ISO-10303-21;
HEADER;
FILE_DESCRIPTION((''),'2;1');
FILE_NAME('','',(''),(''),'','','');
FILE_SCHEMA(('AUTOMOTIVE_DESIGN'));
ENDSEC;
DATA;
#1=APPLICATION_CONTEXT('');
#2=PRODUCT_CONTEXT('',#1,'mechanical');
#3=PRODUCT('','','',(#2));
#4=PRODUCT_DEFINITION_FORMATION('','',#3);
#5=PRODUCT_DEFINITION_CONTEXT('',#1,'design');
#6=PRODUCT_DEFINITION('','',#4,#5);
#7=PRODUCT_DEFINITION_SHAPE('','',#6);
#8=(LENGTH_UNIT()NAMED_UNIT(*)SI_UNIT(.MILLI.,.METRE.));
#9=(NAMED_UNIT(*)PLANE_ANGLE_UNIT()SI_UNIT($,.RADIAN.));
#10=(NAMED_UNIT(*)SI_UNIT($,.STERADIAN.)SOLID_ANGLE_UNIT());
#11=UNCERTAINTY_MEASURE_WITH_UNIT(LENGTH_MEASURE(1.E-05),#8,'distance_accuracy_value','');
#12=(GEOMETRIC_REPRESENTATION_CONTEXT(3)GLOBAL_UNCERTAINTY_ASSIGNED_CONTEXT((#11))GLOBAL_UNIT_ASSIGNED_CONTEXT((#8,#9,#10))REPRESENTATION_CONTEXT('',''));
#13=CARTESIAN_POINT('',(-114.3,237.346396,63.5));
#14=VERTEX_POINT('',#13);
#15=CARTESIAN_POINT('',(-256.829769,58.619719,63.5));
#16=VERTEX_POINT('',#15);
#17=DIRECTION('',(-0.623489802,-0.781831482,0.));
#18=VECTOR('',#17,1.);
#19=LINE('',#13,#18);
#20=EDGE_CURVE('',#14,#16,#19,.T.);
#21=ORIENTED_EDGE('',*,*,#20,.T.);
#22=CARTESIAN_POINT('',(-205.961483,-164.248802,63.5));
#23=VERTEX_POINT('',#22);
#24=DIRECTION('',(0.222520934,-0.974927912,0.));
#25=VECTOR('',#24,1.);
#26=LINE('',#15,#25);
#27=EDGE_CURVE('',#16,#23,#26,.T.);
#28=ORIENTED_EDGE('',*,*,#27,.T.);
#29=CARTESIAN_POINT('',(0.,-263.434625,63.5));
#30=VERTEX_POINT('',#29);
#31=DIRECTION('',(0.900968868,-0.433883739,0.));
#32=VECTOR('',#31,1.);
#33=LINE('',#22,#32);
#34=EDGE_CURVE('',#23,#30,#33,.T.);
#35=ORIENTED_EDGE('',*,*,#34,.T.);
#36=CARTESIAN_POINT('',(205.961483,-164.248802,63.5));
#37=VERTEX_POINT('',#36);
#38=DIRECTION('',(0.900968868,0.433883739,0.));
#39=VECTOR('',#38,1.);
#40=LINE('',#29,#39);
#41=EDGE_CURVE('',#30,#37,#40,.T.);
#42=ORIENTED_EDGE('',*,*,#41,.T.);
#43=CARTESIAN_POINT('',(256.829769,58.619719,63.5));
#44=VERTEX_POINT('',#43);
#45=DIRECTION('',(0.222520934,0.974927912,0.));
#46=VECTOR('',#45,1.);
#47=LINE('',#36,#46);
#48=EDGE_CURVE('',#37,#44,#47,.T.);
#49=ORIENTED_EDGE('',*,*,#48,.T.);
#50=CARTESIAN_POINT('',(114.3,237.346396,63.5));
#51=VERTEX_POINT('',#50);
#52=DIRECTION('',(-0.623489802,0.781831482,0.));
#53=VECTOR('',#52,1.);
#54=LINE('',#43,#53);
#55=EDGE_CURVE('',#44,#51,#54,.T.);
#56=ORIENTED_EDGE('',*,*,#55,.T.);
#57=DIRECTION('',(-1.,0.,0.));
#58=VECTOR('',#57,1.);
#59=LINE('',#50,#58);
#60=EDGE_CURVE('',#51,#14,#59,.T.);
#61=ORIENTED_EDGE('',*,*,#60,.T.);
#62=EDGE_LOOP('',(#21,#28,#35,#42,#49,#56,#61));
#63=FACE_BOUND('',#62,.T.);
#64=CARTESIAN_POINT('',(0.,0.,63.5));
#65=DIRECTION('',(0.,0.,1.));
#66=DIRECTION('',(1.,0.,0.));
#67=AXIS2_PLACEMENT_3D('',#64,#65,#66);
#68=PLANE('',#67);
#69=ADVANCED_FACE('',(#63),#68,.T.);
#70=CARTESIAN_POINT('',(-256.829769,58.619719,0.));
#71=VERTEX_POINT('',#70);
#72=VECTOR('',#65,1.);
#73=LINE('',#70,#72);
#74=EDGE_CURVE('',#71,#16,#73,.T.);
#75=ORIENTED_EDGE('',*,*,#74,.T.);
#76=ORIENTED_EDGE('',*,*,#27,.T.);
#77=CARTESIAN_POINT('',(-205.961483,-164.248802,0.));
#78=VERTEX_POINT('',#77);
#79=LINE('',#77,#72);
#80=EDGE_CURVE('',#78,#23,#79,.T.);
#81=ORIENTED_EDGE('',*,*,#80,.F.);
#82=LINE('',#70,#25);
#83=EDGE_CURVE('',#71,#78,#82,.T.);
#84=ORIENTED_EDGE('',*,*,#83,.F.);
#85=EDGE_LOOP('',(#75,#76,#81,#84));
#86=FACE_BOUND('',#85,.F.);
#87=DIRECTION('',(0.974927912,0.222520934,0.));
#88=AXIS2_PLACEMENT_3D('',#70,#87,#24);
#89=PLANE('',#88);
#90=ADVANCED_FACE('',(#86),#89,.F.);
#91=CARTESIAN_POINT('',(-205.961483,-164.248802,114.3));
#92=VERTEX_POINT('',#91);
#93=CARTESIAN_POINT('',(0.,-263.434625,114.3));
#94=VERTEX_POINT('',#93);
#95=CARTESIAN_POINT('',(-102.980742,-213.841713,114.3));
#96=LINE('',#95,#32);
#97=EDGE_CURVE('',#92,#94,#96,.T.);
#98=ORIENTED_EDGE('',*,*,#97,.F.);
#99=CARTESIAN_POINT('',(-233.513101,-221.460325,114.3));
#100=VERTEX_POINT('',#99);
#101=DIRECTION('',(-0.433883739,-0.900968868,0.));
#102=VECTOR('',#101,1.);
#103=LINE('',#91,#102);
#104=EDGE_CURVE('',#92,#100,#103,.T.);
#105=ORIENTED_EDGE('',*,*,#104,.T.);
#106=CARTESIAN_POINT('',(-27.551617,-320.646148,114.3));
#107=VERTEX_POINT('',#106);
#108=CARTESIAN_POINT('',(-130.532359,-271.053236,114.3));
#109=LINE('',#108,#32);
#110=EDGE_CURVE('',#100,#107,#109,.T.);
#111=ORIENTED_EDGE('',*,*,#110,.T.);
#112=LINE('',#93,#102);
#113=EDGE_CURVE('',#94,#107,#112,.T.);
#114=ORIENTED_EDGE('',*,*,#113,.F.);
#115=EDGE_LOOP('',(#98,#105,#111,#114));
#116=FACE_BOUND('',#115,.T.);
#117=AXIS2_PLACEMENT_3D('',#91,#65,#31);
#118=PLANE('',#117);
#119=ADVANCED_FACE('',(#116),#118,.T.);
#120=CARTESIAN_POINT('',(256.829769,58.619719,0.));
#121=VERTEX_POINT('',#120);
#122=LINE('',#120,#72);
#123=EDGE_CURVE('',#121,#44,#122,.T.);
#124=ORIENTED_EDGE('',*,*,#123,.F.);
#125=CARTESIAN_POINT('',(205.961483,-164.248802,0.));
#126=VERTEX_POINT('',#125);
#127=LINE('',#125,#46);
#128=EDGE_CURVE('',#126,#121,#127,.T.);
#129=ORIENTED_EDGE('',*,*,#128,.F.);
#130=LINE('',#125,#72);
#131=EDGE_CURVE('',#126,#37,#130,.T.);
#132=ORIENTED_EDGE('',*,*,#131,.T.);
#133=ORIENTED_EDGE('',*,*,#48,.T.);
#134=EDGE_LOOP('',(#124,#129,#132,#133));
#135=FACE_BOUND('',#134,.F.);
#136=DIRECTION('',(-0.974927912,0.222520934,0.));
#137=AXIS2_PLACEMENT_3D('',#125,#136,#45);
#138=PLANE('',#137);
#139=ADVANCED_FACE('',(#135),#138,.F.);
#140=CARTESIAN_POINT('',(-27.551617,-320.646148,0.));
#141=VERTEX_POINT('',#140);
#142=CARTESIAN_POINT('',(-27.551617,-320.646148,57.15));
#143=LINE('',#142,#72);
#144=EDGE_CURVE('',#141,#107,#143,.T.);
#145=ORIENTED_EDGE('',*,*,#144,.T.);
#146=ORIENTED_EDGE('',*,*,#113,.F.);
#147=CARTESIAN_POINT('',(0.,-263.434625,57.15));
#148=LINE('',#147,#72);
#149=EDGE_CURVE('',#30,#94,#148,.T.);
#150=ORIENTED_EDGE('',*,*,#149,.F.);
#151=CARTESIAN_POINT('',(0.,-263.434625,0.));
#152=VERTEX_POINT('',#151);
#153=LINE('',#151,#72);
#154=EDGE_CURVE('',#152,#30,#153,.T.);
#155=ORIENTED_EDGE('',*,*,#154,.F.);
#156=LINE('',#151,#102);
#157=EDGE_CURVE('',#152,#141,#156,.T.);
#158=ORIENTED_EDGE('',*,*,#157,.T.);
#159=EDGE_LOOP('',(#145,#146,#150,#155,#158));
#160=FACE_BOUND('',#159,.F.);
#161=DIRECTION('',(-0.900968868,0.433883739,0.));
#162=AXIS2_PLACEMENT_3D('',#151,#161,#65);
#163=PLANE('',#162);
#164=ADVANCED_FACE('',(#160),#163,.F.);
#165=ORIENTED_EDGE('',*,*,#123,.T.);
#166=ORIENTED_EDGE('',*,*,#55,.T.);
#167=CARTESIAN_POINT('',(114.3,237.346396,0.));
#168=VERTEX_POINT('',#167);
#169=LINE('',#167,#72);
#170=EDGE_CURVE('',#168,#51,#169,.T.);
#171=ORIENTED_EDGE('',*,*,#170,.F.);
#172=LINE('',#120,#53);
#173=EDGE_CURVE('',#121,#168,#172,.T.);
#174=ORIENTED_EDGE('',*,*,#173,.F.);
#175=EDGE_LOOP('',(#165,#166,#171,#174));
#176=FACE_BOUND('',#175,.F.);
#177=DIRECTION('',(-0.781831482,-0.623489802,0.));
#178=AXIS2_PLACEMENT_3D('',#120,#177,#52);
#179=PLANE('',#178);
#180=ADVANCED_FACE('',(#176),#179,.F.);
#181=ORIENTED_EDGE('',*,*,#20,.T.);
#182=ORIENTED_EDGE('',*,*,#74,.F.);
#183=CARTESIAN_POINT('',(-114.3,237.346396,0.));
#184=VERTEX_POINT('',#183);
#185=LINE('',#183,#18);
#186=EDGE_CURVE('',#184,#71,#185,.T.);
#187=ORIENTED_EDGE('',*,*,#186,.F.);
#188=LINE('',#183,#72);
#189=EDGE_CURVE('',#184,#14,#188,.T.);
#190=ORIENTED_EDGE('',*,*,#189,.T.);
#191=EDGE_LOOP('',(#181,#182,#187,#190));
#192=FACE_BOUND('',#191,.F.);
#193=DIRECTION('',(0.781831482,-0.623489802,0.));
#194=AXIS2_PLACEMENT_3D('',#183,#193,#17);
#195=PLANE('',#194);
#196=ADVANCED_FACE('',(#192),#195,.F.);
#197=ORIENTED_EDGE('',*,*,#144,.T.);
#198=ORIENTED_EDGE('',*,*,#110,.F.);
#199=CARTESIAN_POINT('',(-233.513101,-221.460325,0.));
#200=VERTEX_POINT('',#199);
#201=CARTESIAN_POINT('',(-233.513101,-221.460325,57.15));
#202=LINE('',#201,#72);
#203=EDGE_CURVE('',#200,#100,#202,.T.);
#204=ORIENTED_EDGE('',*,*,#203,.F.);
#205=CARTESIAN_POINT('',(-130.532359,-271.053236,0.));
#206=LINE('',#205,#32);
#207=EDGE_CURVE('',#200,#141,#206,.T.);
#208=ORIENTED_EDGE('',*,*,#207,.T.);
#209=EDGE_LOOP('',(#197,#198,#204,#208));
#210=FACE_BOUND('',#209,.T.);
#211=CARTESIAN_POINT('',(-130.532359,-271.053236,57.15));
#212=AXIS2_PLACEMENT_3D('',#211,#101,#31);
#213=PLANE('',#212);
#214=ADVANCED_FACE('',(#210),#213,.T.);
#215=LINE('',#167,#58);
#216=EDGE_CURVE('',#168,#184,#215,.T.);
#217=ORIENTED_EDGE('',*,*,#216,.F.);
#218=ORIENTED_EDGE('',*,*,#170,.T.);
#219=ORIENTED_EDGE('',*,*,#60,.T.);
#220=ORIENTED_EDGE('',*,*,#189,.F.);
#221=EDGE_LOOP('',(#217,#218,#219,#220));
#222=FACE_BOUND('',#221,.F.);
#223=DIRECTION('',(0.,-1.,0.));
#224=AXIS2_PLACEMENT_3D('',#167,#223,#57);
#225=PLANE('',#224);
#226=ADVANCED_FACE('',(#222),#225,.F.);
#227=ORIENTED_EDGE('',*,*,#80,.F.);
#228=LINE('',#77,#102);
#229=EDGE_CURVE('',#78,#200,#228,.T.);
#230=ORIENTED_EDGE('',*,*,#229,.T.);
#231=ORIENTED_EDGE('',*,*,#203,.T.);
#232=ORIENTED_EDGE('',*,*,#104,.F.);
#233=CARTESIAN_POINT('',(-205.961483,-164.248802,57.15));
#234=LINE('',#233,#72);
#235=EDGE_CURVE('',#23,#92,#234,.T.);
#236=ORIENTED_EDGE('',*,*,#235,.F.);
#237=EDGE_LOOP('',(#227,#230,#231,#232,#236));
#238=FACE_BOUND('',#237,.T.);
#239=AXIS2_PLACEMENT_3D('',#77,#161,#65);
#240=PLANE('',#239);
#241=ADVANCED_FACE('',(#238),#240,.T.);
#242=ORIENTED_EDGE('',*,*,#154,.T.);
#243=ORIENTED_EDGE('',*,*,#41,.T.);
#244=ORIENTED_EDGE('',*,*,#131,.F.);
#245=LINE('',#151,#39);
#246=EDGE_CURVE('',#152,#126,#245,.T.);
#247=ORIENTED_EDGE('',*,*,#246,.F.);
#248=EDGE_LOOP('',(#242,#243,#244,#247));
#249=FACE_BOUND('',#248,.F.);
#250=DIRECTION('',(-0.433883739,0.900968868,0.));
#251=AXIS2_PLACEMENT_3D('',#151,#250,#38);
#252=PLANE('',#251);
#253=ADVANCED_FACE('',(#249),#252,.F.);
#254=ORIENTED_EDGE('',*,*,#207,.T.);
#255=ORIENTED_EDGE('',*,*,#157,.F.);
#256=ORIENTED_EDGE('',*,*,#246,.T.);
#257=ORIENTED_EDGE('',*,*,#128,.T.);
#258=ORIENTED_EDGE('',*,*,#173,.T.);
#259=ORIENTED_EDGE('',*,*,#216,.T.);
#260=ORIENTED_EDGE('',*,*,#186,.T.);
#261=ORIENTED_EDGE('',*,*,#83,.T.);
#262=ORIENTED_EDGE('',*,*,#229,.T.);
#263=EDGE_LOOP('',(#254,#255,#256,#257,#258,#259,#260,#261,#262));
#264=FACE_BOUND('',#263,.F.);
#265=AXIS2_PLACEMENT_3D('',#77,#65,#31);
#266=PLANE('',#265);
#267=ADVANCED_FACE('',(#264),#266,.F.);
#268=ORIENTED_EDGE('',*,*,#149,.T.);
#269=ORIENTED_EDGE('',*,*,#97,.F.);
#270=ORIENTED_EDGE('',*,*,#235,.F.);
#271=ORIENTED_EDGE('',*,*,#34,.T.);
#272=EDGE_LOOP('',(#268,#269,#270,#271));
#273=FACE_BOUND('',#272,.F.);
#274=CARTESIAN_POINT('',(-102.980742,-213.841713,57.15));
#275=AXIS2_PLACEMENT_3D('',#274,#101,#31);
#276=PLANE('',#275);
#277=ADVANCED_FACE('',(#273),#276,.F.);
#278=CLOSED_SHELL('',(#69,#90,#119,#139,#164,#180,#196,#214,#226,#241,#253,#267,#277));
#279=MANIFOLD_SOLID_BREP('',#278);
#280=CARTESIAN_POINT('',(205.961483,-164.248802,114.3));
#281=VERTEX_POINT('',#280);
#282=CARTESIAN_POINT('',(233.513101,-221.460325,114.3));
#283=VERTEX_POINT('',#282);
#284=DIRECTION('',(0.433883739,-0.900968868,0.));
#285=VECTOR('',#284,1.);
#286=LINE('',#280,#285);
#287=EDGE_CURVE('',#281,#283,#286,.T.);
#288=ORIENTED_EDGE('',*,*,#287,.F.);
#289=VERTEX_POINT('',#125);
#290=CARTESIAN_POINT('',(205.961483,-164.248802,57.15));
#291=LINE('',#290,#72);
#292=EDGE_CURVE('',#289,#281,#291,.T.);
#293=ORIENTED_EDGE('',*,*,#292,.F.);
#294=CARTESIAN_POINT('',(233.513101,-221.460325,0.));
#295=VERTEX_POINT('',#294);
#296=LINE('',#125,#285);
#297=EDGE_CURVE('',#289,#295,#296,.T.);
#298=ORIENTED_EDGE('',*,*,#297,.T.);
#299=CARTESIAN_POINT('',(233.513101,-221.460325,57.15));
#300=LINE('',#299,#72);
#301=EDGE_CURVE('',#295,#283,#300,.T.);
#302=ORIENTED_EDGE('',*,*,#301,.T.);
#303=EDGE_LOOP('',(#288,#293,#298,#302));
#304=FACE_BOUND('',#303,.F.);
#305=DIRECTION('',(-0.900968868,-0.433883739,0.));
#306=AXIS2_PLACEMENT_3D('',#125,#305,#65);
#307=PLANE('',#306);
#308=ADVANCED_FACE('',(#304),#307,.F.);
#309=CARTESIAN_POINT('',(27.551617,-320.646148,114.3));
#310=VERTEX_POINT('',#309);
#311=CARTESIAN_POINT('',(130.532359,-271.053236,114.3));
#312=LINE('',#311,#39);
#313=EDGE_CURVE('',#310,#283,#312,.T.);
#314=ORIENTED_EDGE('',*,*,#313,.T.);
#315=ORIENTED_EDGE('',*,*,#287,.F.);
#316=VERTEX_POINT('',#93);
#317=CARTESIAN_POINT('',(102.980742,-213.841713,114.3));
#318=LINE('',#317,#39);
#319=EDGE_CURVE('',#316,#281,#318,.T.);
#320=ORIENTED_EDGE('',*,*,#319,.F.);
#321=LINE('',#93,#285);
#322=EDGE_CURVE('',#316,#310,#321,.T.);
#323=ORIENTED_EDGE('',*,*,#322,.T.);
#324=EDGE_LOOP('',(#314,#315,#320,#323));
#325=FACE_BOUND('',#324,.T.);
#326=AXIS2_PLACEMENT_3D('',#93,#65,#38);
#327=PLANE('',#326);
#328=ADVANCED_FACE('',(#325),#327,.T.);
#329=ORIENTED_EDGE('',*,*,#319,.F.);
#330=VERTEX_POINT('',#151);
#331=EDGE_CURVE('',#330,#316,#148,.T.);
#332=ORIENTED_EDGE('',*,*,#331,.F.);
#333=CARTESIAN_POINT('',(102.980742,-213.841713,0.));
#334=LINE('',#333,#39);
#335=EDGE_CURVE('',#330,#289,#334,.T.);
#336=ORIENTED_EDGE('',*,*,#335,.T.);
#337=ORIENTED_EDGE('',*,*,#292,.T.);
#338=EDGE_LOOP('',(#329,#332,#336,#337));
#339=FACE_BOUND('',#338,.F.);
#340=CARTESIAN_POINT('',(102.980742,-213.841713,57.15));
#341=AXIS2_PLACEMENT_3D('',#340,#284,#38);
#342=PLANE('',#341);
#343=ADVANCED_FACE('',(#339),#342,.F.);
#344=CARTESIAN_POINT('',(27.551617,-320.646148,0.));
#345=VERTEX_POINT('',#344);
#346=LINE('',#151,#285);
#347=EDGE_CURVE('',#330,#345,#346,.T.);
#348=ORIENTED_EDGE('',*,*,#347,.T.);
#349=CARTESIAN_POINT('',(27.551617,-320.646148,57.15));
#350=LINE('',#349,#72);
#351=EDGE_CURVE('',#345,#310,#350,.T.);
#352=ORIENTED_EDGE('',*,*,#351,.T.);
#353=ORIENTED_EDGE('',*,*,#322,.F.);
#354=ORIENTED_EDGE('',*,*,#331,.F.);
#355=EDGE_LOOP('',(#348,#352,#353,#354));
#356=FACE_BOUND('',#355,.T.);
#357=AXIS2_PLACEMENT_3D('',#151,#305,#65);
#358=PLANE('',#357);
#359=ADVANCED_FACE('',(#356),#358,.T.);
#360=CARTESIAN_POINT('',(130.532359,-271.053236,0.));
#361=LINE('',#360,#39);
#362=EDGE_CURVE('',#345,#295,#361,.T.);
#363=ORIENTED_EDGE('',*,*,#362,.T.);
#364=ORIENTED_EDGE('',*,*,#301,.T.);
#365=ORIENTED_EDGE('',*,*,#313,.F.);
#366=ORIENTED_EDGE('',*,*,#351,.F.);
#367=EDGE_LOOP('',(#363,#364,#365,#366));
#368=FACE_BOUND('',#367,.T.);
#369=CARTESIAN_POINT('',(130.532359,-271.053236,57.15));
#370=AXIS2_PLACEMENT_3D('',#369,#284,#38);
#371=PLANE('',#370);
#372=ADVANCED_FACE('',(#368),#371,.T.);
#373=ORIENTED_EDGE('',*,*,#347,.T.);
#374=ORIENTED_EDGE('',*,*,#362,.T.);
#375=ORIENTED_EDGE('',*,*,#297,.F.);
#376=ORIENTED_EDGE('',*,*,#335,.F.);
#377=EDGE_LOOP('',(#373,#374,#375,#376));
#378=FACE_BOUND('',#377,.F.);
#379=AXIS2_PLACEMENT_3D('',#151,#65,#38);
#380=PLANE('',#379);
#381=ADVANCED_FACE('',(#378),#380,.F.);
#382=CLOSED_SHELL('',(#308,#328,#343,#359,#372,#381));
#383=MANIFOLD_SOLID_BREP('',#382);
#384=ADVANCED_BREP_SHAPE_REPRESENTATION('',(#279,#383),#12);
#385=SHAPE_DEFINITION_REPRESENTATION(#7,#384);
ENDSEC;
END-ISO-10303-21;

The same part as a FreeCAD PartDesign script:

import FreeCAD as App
import Part
import Sketcher

V = App.Vector
Q = App.Units.Quantity


def add_polygon(sketch, points):
    """Adds a closed chain of lines whose ends are joined by coincident constraints."""
    first, n = sketch.GeometryCount, len(points)
    for a, b in zip(points, points[1:] + points[:1]):
        sketch.addGeometry(Part.LineSegment(App.Vector(*a, 0), App.Vector(*b, 0)), False)
    for i in range(n):
        sketch.addConstraint(Sketcher.Constraint("Coincident", first + i, 2, first + (i + 1) % n, 1))

doc = App.newDocument("Part")
body = doc.addObject("PartDesign::Body", "Body")

sketch1 = body.newObject("Sketcher::SketchObject", "Sketch")
sketch1.AttachmentSupport = (doc.getObject("XY_Plane"), [""])
sketch1.MapMode = "FlatFace"
add_polygon(sketch1, [(114.3, 237.346396), (-114.3, 237.346396), (-256.829769, 58.619719), (-205.961483, -164.248802), (0, -263.434625), (205.961483, -164.248802), (256.829769, 58.619719)])
sketch1.addConstraint([
    Sketcher.Constraint("Horizontal", 0),
    Sketcher.Constraint("Symmetric", 2, 2, 4, 2, -2),
    Sketcher.Constraint("Symmetric", 1, 2, 5, 2, -2),
    Sketcher.Constraint("PointOnObject", 3, 2, -2),
    Sketcher.Constraint("Equal", 1, 2),
    Sketcher.Constraint("Equal", 2, 3),
    Sketcher.Constraint("Equal", 5, 6),
    Sketcher.Constraint("DistanceX", 0, 2, 0, 1, Q("9 in")),
    Sketcher.Constraint("Distance", 1, Q("9 in")),
    Sketcher.Constraint("DistanceY", 2, 2, -1, 1, 164.248802),
    Sketcher.Constraint("DistanceX", 1, 2, -1, 1, 256.829769),
    Sketcher.Constraint("DistanceY", -1, 1, 1, 2, 58.619719),
])
pad1 = body.newObject("PartDesign::Pad", "Pad")
pad1.Profile = sketch1
pad1.Length = Q("2.5 in")

sketch2 = body.newObject("Sketcher::SketchObject", "Sketch001")
sketch2.Placement = App.Placement(V(-102.980742, -213.841713, 0), App.Rotation(V(0.900968868, -0.433883739, 0), V(0, 0, 1), V(-0.433883739, -0.900968868, 0), "ZXY"))
add_polygon(sketch2, [(-114.3, 114.3), (-114.3, 0), (114.3, 0), (114.3, 114.3)])
sketch2.addConstraint([
    Sketcher.Constraint("Vertical", 0),
    Sketcher.Constraint("Horizontal", 1),
    Sketcher.Constraint("Vertical", 2),
    Sketcher.Constraint("Horizontal", 3),
    Sketcher.Constraint("Symmetric", 0, 2, 1, 2, -1, 1),
    Sketcher.Constraint("DistanceX", 1, 1, 1, 2, Q("9 in")),
    Sketcher.Constraint("DistanceY", 0, 2, 0, 1, Q("4.5 in")),
])
pad2 = body.newObject("PartDesign::Pad", "Pad001")
pad2.Profile = sketch2
pad2.Length = Q("2.5 in")
body2 = doc.addObject("PartDesign::Body", "Body001")

sketch3 = body2.newObject("Sketcher::SketchObject", "Sketch002")
sketch3.Placement = App.Placement(V(102.980742, -213.841713, 0), App.Rotation(V(0.900968868, 0.433883739, 0), V(0, 0, 1), V(0.433883739, -0.900968868, 0), "ZXY"))
add_polygon(sketch3, [(-114.3, 114.3), (-114.3, 0), (114.3, 0), (114.3, 114.3)])
sketch3.addConstraint([
    Sketcher.Constraint("Vertical", 0),
    Sketcher.Constraint("Horizontal", 1),
    Sketcher.Constraint("Vertical", 2),
    Sketcher.Constraint("Horizontal", 3),
    Sketcher.Constraint("Symmetric", 0, 2, 1, 2, -1, 1),
    Sketcher.Constraint("DistanceX", 1, 1, 1, 2, Q("9 in")),
    Sketcher.Constraint("DistanceY", 0, 2, 0, 1, Q("4.5 in")),
])
pad3 = body2.newObject("PartDesign::Pad", "Pad002")
pad3.Profile = sketch3
pad3.Length = Q("2.5 in")

doc.recompute()
